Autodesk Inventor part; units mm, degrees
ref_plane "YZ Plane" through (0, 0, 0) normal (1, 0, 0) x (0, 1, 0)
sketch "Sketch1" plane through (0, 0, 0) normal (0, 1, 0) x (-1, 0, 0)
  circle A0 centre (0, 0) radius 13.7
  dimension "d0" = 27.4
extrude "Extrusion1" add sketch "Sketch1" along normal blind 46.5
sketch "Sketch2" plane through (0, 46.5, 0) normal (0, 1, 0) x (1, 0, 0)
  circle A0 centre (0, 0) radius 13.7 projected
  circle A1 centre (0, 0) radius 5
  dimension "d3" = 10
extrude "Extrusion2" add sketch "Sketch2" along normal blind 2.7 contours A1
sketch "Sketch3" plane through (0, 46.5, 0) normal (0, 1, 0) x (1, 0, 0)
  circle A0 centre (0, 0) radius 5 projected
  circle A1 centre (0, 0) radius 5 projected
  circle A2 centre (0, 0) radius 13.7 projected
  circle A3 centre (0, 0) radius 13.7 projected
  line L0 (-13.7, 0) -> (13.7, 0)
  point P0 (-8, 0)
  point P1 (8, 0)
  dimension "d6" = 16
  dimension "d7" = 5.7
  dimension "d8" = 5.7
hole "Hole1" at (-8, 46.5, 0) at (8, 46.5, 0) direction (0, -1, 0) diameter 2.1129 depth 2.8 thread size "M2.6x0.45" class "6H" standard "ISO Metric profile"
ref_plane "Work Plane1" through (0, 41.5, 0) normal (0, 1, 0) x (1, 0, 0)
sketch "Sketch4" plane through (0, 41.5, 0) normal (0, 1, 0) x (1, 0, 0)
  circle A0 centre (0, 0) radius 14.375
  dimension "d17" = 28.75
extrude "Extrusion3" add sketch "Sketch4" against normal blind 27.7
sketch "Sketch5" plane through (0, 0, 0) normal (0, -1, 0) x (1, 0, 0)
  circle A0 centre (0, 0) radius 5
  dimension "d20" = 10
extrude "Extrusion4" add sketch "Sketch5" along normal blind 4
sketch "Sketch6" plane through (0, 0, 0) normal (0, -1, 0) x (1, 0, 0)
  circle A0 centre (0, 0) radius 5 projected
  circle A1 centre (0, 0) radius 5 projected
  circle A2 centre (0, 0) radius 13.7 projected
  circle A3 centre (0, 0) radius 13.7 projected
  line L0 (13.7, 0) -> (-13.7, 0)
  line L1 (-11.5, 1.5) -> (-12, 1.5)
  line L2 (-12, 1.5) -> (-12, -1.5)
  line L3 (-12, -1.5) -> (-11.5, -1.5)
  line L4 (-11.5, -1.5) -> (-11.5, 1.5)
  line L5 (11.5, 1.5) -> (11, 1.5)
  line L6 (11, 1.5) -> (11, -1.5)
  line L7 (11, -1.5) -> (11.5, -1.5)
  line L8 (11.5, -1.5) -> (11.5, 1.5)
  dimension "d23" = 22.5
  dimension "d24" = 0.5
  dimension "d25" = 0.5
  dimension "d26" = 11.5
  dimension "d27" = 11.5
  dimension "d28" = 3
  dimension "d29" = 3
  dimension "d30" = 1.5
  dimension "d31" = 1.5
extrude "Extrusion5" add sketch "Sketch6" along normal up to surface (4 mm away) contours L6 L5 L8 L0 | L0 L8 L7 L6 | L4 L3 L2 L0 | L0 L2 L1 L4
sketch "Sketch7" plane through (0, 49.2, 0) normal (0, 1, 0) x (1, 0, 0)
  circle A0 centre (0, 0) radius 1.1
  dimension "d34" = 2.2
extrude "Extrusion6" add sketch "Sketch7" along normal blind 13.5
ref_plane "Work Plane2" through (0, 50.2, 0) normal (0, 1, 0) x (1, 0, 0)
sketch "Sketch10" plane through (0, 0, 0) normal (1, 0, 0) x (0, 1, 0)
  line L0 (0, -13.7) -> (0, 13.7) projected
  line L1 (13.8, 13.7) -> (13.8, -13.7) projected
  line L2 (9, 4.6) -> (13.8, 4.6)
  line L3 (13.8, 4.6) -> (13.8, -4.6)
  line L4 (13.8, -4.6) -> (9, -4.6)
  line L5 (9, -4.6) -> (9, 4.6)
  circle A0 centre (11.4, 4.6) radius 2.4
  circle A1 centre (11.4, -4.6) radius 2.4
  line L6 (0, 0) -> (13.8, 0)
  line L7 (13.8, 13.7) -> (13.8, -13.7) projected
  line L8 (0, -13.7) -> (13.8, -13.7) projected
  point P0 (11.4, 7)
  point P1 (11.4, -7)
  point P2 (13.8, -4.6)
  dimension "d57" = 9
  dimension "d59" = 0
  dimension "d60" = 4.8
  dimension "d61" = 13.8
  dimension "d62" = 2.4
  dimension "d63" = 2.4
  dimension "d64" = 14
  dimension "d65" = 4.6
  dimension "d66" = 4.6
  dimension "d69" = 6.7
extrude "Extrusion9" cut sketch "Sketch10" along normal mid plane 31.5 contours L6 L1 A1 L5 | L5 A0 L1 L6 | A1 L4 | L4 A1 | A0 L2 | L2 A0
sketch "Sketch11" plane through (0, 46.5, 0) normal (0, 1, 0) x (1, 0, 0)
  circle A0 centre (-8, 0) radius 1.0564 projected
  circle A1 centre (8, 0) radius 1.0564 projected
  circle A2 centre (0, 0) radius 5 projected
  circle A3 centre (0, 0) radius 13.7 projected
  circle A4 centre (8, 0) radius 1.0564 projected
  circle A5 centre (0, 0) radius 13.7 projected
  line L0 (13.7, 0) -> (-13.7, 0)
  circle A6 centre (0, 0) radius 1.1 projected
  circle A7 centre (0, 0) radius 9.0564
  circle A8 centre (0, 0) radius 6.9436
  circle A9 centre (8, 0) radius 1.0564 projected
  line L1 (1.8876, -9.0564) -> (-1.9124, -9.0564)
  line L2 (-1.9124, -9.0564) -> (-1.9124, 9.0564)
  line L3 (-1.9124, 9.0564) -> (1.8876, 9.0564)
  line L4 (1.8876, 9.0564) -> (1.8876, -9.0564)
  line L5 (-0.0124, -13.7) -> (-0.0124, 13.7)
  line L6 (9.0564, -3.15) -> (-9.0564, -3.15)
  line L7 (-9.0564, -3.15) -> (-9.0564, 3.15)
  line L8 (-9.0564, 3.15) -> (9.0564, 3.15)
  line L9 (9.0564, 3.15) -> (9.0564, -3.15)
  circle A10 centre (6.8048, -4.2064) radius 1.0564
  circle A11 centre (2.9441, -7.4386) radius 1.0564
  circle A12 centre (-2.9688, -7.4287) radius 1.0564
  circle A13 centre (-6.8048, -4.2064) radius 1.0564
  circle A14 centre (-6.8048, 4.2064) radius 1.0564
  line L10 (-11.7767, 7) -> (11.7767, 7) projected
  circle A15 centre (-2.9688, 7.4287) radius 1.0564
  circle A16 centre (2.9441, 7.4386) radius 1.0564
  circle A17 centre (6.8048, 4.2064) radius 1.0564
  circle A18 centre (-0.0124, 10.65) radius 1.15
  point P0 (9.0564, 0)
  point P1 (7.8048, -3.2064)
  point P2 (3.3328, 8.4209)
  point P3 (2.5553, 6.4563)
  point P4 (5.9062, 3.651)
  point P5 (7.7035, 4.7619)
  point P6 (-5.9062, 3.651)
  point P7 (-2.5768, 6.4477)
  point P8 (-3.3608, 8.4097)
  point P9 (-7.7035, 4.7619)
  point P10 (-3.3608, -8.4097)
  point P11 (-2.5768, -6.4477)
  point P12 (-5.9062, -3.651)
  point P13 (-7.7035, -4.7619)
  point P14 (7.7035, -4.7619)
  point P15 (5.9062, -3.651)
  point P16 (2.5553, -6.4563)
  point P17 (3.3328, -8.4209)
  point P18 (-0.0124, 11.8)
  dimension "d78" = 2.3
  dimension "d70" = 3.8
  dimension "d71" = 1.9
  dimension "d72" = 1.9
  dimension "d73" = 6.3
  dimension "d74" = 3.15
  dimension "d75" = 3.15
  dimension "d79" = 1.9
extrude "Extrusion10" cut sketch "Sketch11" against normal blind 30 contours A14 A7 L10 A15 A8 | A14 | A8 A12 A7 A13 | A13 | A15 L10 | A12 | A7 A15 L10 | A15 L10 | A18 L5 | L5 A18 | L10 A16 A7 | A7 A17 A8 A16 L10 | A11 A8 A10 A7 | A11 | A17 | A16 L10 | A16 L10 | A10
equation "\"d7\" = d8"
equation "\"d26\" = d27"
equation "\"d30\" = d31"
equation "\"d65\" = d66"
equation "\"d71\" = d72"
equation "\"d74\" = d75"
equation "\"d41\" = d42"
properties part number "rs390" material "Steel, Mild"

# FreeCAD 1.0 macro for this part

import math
import FreeCAD as App
import Part
import Sketcher
from FreeCAD import Vector
Q = App.Units.Quantity

doc = App.newDocument("Part")
body = doc.addObject("PartDesign::Body", "Body")

# Sketch on XZ plane
sketch1 = body.newObject("Sketcher::SketchObject", "Sketch")
sketch1.AttachmentSupport = (doc.getObject("XZ_Plane"), [""])
sketch1.MapMode = "FlatFace"
sketch1.addGeometry(Part.Circle(Vector(0, 0, 0), Vector(0, 0, 1), 14), False)
sketch1.addConstraint(Sketcher.Constraint("Coincident", 0, 3, -1, 1))
sketch1.addConstraint(Sketcher.Constraint("Diameter", 0, Q("27.4 mm")))
pad1 = body.newObject("PartDesign::Pad", "Pad")
pad1.Profile = sketch1
pad1.Length = 46.5
pad1.Reversed = True

# Sketch on XZ plane
sketch2 = body.newObject("Sketcher::SketchObject", "Sketch001")
sketch2.AttachmentSupport = (doc.getObject("XZ_Plane"), [""])
sketch2.MapMode = "FlatFace"
sketch2.AttachmentOffset = App.Placement(Vector(0, 0, -46.5), App.Rotation())
sketch2.addGeometry(Part.Circle(Vector(0, 0, 0), Vector(0, 0, 1), 5), False)
sketch2.addConstraint(Sketcher.Constraint("Coincident", 0, 3, -1, 1))
sketch2.addConstraint(Sketcher.Constraint("Diameter", 0, Q("10 mm")))
pad2 = body.newObject("PartDesign::Pad", "Pad001")
pad2.Profile = sketch2
pad2.Length = 2.7
pad2.Reversed = True

# Sketch on XZ plane
sketch3 = body.newObject("Sketcher::SketchObject", "Sketch002")
sketch3.AttachmentSupport = (doc.getObject("XZ_Plane"), [""])
sketch3.MapMode = "FlatFace"
sketch3.AttachmentOffset = App.Placement(Vector(0, 0, -46.5), App.Rotation())
sketch3.addGeometry(Part.Circle(Vector(-8, 0, 0), Vector(0, 0, 1), 1.1), False)
sketch3.addGeometry(Part.Circle(Vector(8, 0, 0), Vector(0, 0, 1), 1.1), False)
sketch3.addConstraint(Sketcher.Constraint("Equal", 0, 1))
sketch3.addConstraint(Sketcher.Constraint("Symmetric", 0, 3, 1, 3, -1, 1))
sketch3.addConstraint(Sketcher.Constraint("PointOnObject", 0, 3, -1))
sketch3.addConstraint(Sketcher.Constraint("Diameter", 0, Q("2.113 mm")))
sketch3.addConstraint(Sketcher.Constraint("DistanceX", 0, 3, -1, 1, Q("8 mm")))
doc.recompute()
hole = body.newObject("PartDesign::Hole", "Hole")
hole.Profile = sketch3
hole.ThreadType = "None"
hole.Diameter = 2.1129
hole.DepthType = "Dimension"
hole.Depth = 2.8
hole.DrillPoint = "Flat"
hole.Reversed = True

# Sketch on XZ plane
sketch4 = body.newObject("Sketcher::SketchObject", "Sketch003")
sketch4.AttachmentSupport = (doc.getObject("XZ_Plane"), [""])
sketch4.MapMode = "FlatFace"
sketch4.AttachmentOffset = App.Placement(Vector(0, 0, -41.5), App.Rotation())
sketch4.addGeometry(Part.Circle(Vector(0, 0, 0), Vector(0, 0, 1), 14), False)
sketch4.addConstraint(Sketcher.Constraint("Coincident", 0, 3, -1, 1))
sketch4.addConstraint(Sketcher.Constraint("Diameter", 0, Q("28.75 mm")))
pad3 = body.newObject("PartDesign::Pad", "Pad002")
pad3.Profile = sketch4
pad3.Length = 27.7

# Sketch on XZ plane
sketch5 = body.newObject("Sketcher::SketchObject", "Sketch004")
sketch5.AttachmentSupport = (doc.getObject("XZ_Plane"), [""])
sketch5.MapMode = "FlatFace"
sketch5.addGeometry(Part.Circle(Vector(0, 0, 0), Vector(0, 0, 1), 5), False)
sketch5.addConstraint(Sketcher.Constraint("Coincident", 0, 3, -1, 1))
sketch5.addConstraint(Sketcher.Constraint("Diameter", 0, Q("10 mm")))
pad4 = body.newObject("PartDesign::Pad", "Pad003")
pad4.Profile = sketch5
pad4.Length = 4

# Sketch on XZ plane
sketch6 = body.newObject("Sketcher::SketchObject", "Sketch005")
sketch6.AttachmentSupport = (doc.getObject("XZ_Plane"), [""])
sketch6.MapMode = "FlatFace"
sketch6.addGeometry(Part.LineSegment(Vector(11, 1.5, 0), Vector(11, -1.5, 0)), False)
sketch6.addGeometry(Part.LineSegment(Vector(11, -1.5, 0), Vector(11.5, -1.5, 0)), False)
sketch6.addGeometry(Part.LineSegment(Vector(11.5, -1.5, 0), Vector(11.5, 1.5, 0)), False)
sketch6.addGeometry(Part.LineSegment(Vector(11.5, 1.5, 0), Vector(11, 1.5, 0)), False)
sketch6.addGeometry(Part.LineSegment(Vector(-11.5, -1.5, 0), Vector(-11.5, 1.5, 0)), False)
sketch6.addGeometry(Part.LineSegment(Vector(-11.5, 1.5, 0), Vector(-12, 1.5, 0)), False)
sketch6.addGeometry(Part.LineSegment(Vector(-12, 1.5, 0), Vector(-12, -1.5, 0)), False)
sketch6.addGeometry(Part.LineSegment(Vector(-12, -1.5, 0), Vector(-11.5, -1.5, 0)), False)
sketch6.addConstraint(Sketcher.Constraint("Coincident", 0, 2, 1, 1))
sketch6.addConstraint(Sketcher.Constraint("Coincident", 1, 2, 2, 1))
sketch6.addConstraint(Sketcher.Constraint("Coincident", 2, 2, 3, 1))
sketch6.addConstraint(Sketcher.Constraint("Coincident", 3, 2, 0, 1))
sketch6.addConstraint(Sketcher.Constraint("Coincident", 4, 2, 5, 1))
sketch6.addConstraint(Sketcher.Constraint("Coincident", 5, 2, 6, 1))
sketch6.addConstraint(Sketcher.Constraint("Coincident", 6, 2, 7, 1))
sketch6.addConstraint(Sketcher.Constraint("Coincident", 7, 2, 4, 1))
sketch6.addConstraint(Sketcher.Constraint("Vertical", 0))
sketch6.addConstraint(Sketcher.Constraint("Horizontal", 1))
sketch6.addConstraint(Sketcher.Constraint("Vertical", 2))
sketch6.addConstraint(Sketcher.Constraint("Horizontal", 3))
sketch6.addConstraint(Sketcher.Constraint("Vertical", 4))
sketch6.addConstraint(Sketcher.Constraint("Horizontal", 5))
sketch6.addConstraint(Sketcher.Constraint("Vertical", 6))
sketch6.addConstraint(Sketcher.Constraint("Horizontal", 7))
sketch6.addConstraint(Sketcher.Constraint("Symmetric", 1, 2, 4, 2, -1, 1))
sketch6.addConstraint(Sketcher.Constraint("Horizontal", 3, 2, 4, 2))
sketch6.addConstraint(Sketcher.Constraint("Horizontal", 1, 2, 6, 2))
sketch6.addConstraint(Sketcher.Constraint("Equal", 3, 5))
sketch6.addConstraint(Sketcher.Constraint("DistanceY", 0, 2, 0, 1, Q("3 mm")))
sketch6.addConstraint(Sketcher.Constraint("DistanceX", 1, 1, 1, 2, Q("0.5 mm")))
sketch6.addConstraint(Sketcher.Constraint("DistanceX", -1, 1, 1, 2, Q("11.5 mm")))
pad5 = body.newObject("PartDesign::Pad", "Pad004")
pad5.Profile = sketch6
pad5.Length = 4

# Sketch on XZ plane
sketch7 = body.newObject("Sketcher::SketchObject", "Sketch006")
sketch7.AttachmentSupport = (doc.getObject("XZ_Plane"), [""])
sketch7.MapMode = "FlatFace"
sketch7.AttachmentOffset = App.Placement(Vector(0, 0, -49.2), App.Rotation())
sketch7.addGeometry(Part.Circle(Vector(0, 0, 0), Vector(0, 0, 1), 1.1), False)
sketch7.addConstraint(Sketcher.Constraint("Coincident", 0, 3, -1, 1))
sketch7.addConstraint(Sketcher.Constraint("Diameter", 0, Q("2.2 mm")))
pad6 = body.newObject("PartDesign::Pad", "Pad005")
pad6.Profile = sketch7
pad6.Length = 13.5
pad6.Reversed = True

# Sketch on YZ plane
sketch8 = body.newObject("Sketcher::SketchObject", "Sketch007")
sketch8.AttachmentSupport = (doc.getObject("YZ_Plane"), [""])
sketch8.MapMode = "FlatFace"
sketch8.addGeometry(Part.LineSegment(Vector(13.8, -4.6, 0), Vector(13.8, 4.6, 0)), False)
sketch8.addGeometry(Part.ArcOfCircle(Part.Circle(Vector(11.4, 4.6, 0), Vector(0, 0, 1), 2.4), math.radians(0), math.radians(180)), False)
sketch8.addGeometry(Part.LineSegment(Vector(9, 4.6, 0), Vector(9, -4.6, 0)), False)
sketch8.addGeometry(Part.ArcOfCircle(Part.Circle(Vector(11.4, -4.6, 0), Vector(0, 0, 1), 2.4), math.radians(180), math.radians(360)), False)
sketch8.addConstraint(Sketcher.Constraint("Tangent", 0, 2, 1, 1))
sketch8.addConstraint(Sketcher.Constraint("Tangent", 1, 2, 2, 1))
sketch8.addConstraint(Sketcher.Constraint("Tangent", 2, 2, 3, 1))
sketch8.addConstraint(Sketcher.Constraint("Tangent", 3, 2, 0, 1))
sketch8.addConstraint(Sketcher.Constraint("Vertical", 0))
sketch8.addConstraint(Sketcher.Constraint("Vertical", 2))
sketch8.addConstraint(Sketcher.Constraint("Radius", 1, Q("2.4 mm")))
sketch8.addConstraint(Sketcher.Constraint("DistanceX", -1, 1, 1, 2, Q("9 mm")))
sketch8.addConstraint(Sketcher.Constraint("DistanceY", -1, 1, 1, 3, Q("4.6 mm")))
sketch8.addConstraint(Sketcher.Constraint("DistanceY", 3, 3, -1, 1, Q("4.6 mm")))
pocket1 = body.newObject("PartDesign::Pocket", "Pocket")
pocket1.Profile = sketch8
pocket1.Length = 31.5
pocket1.Midplane = True

# Sketch on XZ plane
sketch9 = body.newObject("Sketcher::SketchObject", "Sketch008")
sketch9.AttachmentSupport = (doc.getObject("XZ_Plane"), [""])
sketch9.MapMode = "FlatFace"
sketch9.AttachmentOffset = App.Placement(Vector(0, 0, -46.5), App.Rotation())
sketch9.addGeometry(Part.ArcOfCircle(Part.Circle(Vector(-6.8, -4.2, 0), Vector(0, 0, 1), 1.1), math.radians(32), math.radians(212)), False)
sketch9.addGeometry(Part.ArcOfCircle(Part.Circle(Vector(0, 0, 0), Vector(0, 0, 1), 6.9), math.radians(-148), math.radians(-112)), False)
sketch9.addGeometry(Part.ArcOfCircle(Part.Circle(Vector(-3, -7.4, 0), Vector(0, 0, 1), 1.1), math.radians(-112), math.radians(68)), False)
sketch9.addGeometry(Part.ArcOfCircle(Part.Circle(Vector(0, 0, 0), Vector(0, 0, 1), 9.1), math.radians(-148), math.radians(-112)), False)
sketch9.addGeometry(Part.ArcOfCircle(Part.Circle(Vector(0, 0, 0), Vector(0, 0, 1), 6.9), math.radians(112), math.radians(148)), False)
sketch9.addGeometry(Part.ArcOfCircle(Part.Circle(Vector(-6.8, 4.2, 0), Vector(0, 0, 1), 1.1), math.radians(148), math.radians(328)), False)
sketch9.addGeometry(Part.ArcOfCircle(Part.Circle(Vector(0, 0, 0), Vector(0, 0, 1), 9.1), math.radians(112), math.radians(148)), False)
sketch9.addGeometry(Part.ArcOfCircle(Part.Circle(Vector(-3, 7.4, 0), Vector(0, 0, 1), 1.1), math.radians(-68), math.radians(112)), False)
sketch9.addGeometry(Part.Circle(Vector(0, -10.7, 0), Vector(0, 0, 1), 1.1), False)
sketch9.addGeometry(Part.ArcOfCircle(Part.Circle(Vector(2.9, -7.4, 0), Vector(0, 0, 1), 1.1), math.radians(112), math.radians(292)), False)
sketch9.addGeometry(Part.ArcOfCircle(Part.Circle(Vector(0, 0, 0), Vector(0, 0, 1), 6.9), math.radians(-68), math.radians(-32)), False)
sketch9.addGeometry(Part.ArcOfCircle(Part.Circle(Vector(6.8, -4.2, 0), Vector(0, 0, 1), 1.1), math.radians(-32), math.radians(148)), False)
sketch9.addGeometry(Part.ArcOfCircle(Part.Circle(Vector(0, 0, 0), Vector(0, 0, 1), 9.1), math.radians(-68), math.radians(-32)), False)
sketch9.addGeometry(Part.ArcOfCircle(Part.Circle(Vector(0, 0, 0), Vector(0, 0, 1), 6.9), math.radians(32), math.radians(68)), False)
sketch9.addGeometry(Part.ArcOfCircle(Part.Circle(Vector(2.9, 7.4, 0), Vector(0, 0, 1), 1.1), math.radians(68), math.radians(248)), False)
sketch9.addGeometry(Part.ArcOfCircle(Part.Circle(Vector(0, 0, 0), Vector(0, 0, 1), 9.1), math.radians(32), math.radians(68)), False)
sketch9.addGeometry(Part.ArcOfCircle(Part.Circle(Vector(6.8, 4.2, 0), Vector(0, 0, 1), 1.1), math.radians(-148), math.radians(32)), False)
sketch9.addConstraint(Sketcher.Constraint("Tangent", 0, 1, 1, 1))
sketch9.addConstraint(Sketcher.Constraint("Tangent", 1, 2, 2, 2))
sketch9.addConstraint(Sketcher.Constraint("Tangent", 2, 1, 3, 2))
sketch9.addConstraint(Sketcher.Constraint("Tangent", 3, 1, 0, 2))
sketch9.addConstraint(Sketcher.Constraint("Tangent", 4, 2, 5, 2))
sketch9.addConstraint(Sketcher.Constraint("Tangent", 5, 1, 6, 2))
sketch9.addConstraint(Sketcher.Constraint("Tangent", 6, 1, 7, 2))
sketch9.addConstraint(Sketcher.Constraint("Tangent", 7, 1, 4, 1))
sketch9.addConstraint(Sketcher.Constraint("Tangent", 9, 1, 10, 1))
sketch9.addConstraint(Sketcher.Constraint("Tangent", 10, 2, 11, 2))
sketch9.addConstraint(Sketcher.Constraint("Tangent", 11, 1, 12, 2))
sketch9.addConstraint(Sketcher.Constraint("Tangent", 12, 1, 9, 2))
sketch9.addConstraint(Sketcher.Constraint("Tangent", 13, 2, 14, 2))
sketch9.addConstraint(Sketcher.Constraint("Tangent", 14, 1, 15, 2))
sketch9.addConstraint(Sketcher.Constraint("Tangent", 15, 1, 16, 2))
sketch9.addConstraint(Sketcher.Constraint("Tangent", 16, 1, 13, 1))
sketch9.addConstraint(Sketcher.Constraint("Coincident", 1, 3, -1, 1))
sketch9.addConstraint(Sketcher.Constraint("Coincident", 3, 3, -1, 1))
sketch9.addConstraint(Sketcher.Constraint("Coincident", 4, 3, -1, 1))
sketch9.addConstraint(Sketcher.Constraint("Coincident", 6, 3, -1, 1))
sketch9.addConstraint(Sketcher.Constraint("Coincident", 10, 3, -1, 1))
sketch9.addConstraint(Sketcher.Constraint("Coincident", 12, 3, -1, 1))
sketch9.addConstraint(Sketcher.Constraint("Coincident", 13, 3, -1, 1))
sketch9.addConstraint(Sketcher.Constraint("Coincident", 15, 3, -1, 1))
sketch9.addConstraint(Sketcher.Constraint("Equal", 1, 4))
sketch9.addConstraint(Sketcher.Constraint("Equal", 2, 5))
sketch9.addConstraint(Sketcher.Constraint("Equal", 7, 9))
sketch9.addConstraint(Sketcher.Constraint("Equal", 4, 10))
sketch9.addConstraint(Sketcher.Constraint("Equal", 10, 13))
sketch9.addConstraint(Sketcher.Constraint("Equal", 11, 14))
sketch9.addConstraint(Sketcher.Constraint("Horizontal", 0, 3, 11, 3))
sketch9.addConstraint(Sketcher.Constraint("Horizontal", 5, 3, 16, 3))
sketch9.addConstraint(Sketcher.Constraint("Vertical", 0, 3, 5, 3))
sketch9.addConstraint(Sketcher.Constraint("Vertical", 2, 3, 7, 3))
sketch9.addConstraint(Sketcher.Constraint("Vertical", 9, 3, 14, 3))
sketch9.addConstraint(Sketcher.Constraint("Diameter", 8, Q("2.3 mm")))
sketch9.addConstraint(Sketcher.Constraint("Radius", 0, Q("1.0564 mm")))
sketch9.addConstraint(Sketcher.Constraint("Radius", 1, Q("6.9436 mm")))
sketch9.addConstraint(Sketcher.Constraint("DistanceY", 8, 3, -1, 1, Q("10.65 mm")))
sketch9.addConstraint(Sketcher.Constraint("DistanceY", 9, 3, 2, 3, Q("0.01 mm")))
sketch9.addConstraint(Sketcher.Constraint("DistanceY", 9, 1, 11, 3, Q("2.25 mm")))
sketch9.addConstraint(Sketcher.Constraint("DistanceY", 16, 1, 14, 1, Q("4.77 mm")))
sketch9.addConstraint(Sketcher.Constraint("DistanceX", 8, 3, -1, 1, Q("0.0124 mm")))
pocket2 = body.newObject("PartDesign::Pocket", "Pocket001")
pocket2.Profile = sketch9
pocket2.Length = 30
pocket2.Reversed = True

doc.recompute()
